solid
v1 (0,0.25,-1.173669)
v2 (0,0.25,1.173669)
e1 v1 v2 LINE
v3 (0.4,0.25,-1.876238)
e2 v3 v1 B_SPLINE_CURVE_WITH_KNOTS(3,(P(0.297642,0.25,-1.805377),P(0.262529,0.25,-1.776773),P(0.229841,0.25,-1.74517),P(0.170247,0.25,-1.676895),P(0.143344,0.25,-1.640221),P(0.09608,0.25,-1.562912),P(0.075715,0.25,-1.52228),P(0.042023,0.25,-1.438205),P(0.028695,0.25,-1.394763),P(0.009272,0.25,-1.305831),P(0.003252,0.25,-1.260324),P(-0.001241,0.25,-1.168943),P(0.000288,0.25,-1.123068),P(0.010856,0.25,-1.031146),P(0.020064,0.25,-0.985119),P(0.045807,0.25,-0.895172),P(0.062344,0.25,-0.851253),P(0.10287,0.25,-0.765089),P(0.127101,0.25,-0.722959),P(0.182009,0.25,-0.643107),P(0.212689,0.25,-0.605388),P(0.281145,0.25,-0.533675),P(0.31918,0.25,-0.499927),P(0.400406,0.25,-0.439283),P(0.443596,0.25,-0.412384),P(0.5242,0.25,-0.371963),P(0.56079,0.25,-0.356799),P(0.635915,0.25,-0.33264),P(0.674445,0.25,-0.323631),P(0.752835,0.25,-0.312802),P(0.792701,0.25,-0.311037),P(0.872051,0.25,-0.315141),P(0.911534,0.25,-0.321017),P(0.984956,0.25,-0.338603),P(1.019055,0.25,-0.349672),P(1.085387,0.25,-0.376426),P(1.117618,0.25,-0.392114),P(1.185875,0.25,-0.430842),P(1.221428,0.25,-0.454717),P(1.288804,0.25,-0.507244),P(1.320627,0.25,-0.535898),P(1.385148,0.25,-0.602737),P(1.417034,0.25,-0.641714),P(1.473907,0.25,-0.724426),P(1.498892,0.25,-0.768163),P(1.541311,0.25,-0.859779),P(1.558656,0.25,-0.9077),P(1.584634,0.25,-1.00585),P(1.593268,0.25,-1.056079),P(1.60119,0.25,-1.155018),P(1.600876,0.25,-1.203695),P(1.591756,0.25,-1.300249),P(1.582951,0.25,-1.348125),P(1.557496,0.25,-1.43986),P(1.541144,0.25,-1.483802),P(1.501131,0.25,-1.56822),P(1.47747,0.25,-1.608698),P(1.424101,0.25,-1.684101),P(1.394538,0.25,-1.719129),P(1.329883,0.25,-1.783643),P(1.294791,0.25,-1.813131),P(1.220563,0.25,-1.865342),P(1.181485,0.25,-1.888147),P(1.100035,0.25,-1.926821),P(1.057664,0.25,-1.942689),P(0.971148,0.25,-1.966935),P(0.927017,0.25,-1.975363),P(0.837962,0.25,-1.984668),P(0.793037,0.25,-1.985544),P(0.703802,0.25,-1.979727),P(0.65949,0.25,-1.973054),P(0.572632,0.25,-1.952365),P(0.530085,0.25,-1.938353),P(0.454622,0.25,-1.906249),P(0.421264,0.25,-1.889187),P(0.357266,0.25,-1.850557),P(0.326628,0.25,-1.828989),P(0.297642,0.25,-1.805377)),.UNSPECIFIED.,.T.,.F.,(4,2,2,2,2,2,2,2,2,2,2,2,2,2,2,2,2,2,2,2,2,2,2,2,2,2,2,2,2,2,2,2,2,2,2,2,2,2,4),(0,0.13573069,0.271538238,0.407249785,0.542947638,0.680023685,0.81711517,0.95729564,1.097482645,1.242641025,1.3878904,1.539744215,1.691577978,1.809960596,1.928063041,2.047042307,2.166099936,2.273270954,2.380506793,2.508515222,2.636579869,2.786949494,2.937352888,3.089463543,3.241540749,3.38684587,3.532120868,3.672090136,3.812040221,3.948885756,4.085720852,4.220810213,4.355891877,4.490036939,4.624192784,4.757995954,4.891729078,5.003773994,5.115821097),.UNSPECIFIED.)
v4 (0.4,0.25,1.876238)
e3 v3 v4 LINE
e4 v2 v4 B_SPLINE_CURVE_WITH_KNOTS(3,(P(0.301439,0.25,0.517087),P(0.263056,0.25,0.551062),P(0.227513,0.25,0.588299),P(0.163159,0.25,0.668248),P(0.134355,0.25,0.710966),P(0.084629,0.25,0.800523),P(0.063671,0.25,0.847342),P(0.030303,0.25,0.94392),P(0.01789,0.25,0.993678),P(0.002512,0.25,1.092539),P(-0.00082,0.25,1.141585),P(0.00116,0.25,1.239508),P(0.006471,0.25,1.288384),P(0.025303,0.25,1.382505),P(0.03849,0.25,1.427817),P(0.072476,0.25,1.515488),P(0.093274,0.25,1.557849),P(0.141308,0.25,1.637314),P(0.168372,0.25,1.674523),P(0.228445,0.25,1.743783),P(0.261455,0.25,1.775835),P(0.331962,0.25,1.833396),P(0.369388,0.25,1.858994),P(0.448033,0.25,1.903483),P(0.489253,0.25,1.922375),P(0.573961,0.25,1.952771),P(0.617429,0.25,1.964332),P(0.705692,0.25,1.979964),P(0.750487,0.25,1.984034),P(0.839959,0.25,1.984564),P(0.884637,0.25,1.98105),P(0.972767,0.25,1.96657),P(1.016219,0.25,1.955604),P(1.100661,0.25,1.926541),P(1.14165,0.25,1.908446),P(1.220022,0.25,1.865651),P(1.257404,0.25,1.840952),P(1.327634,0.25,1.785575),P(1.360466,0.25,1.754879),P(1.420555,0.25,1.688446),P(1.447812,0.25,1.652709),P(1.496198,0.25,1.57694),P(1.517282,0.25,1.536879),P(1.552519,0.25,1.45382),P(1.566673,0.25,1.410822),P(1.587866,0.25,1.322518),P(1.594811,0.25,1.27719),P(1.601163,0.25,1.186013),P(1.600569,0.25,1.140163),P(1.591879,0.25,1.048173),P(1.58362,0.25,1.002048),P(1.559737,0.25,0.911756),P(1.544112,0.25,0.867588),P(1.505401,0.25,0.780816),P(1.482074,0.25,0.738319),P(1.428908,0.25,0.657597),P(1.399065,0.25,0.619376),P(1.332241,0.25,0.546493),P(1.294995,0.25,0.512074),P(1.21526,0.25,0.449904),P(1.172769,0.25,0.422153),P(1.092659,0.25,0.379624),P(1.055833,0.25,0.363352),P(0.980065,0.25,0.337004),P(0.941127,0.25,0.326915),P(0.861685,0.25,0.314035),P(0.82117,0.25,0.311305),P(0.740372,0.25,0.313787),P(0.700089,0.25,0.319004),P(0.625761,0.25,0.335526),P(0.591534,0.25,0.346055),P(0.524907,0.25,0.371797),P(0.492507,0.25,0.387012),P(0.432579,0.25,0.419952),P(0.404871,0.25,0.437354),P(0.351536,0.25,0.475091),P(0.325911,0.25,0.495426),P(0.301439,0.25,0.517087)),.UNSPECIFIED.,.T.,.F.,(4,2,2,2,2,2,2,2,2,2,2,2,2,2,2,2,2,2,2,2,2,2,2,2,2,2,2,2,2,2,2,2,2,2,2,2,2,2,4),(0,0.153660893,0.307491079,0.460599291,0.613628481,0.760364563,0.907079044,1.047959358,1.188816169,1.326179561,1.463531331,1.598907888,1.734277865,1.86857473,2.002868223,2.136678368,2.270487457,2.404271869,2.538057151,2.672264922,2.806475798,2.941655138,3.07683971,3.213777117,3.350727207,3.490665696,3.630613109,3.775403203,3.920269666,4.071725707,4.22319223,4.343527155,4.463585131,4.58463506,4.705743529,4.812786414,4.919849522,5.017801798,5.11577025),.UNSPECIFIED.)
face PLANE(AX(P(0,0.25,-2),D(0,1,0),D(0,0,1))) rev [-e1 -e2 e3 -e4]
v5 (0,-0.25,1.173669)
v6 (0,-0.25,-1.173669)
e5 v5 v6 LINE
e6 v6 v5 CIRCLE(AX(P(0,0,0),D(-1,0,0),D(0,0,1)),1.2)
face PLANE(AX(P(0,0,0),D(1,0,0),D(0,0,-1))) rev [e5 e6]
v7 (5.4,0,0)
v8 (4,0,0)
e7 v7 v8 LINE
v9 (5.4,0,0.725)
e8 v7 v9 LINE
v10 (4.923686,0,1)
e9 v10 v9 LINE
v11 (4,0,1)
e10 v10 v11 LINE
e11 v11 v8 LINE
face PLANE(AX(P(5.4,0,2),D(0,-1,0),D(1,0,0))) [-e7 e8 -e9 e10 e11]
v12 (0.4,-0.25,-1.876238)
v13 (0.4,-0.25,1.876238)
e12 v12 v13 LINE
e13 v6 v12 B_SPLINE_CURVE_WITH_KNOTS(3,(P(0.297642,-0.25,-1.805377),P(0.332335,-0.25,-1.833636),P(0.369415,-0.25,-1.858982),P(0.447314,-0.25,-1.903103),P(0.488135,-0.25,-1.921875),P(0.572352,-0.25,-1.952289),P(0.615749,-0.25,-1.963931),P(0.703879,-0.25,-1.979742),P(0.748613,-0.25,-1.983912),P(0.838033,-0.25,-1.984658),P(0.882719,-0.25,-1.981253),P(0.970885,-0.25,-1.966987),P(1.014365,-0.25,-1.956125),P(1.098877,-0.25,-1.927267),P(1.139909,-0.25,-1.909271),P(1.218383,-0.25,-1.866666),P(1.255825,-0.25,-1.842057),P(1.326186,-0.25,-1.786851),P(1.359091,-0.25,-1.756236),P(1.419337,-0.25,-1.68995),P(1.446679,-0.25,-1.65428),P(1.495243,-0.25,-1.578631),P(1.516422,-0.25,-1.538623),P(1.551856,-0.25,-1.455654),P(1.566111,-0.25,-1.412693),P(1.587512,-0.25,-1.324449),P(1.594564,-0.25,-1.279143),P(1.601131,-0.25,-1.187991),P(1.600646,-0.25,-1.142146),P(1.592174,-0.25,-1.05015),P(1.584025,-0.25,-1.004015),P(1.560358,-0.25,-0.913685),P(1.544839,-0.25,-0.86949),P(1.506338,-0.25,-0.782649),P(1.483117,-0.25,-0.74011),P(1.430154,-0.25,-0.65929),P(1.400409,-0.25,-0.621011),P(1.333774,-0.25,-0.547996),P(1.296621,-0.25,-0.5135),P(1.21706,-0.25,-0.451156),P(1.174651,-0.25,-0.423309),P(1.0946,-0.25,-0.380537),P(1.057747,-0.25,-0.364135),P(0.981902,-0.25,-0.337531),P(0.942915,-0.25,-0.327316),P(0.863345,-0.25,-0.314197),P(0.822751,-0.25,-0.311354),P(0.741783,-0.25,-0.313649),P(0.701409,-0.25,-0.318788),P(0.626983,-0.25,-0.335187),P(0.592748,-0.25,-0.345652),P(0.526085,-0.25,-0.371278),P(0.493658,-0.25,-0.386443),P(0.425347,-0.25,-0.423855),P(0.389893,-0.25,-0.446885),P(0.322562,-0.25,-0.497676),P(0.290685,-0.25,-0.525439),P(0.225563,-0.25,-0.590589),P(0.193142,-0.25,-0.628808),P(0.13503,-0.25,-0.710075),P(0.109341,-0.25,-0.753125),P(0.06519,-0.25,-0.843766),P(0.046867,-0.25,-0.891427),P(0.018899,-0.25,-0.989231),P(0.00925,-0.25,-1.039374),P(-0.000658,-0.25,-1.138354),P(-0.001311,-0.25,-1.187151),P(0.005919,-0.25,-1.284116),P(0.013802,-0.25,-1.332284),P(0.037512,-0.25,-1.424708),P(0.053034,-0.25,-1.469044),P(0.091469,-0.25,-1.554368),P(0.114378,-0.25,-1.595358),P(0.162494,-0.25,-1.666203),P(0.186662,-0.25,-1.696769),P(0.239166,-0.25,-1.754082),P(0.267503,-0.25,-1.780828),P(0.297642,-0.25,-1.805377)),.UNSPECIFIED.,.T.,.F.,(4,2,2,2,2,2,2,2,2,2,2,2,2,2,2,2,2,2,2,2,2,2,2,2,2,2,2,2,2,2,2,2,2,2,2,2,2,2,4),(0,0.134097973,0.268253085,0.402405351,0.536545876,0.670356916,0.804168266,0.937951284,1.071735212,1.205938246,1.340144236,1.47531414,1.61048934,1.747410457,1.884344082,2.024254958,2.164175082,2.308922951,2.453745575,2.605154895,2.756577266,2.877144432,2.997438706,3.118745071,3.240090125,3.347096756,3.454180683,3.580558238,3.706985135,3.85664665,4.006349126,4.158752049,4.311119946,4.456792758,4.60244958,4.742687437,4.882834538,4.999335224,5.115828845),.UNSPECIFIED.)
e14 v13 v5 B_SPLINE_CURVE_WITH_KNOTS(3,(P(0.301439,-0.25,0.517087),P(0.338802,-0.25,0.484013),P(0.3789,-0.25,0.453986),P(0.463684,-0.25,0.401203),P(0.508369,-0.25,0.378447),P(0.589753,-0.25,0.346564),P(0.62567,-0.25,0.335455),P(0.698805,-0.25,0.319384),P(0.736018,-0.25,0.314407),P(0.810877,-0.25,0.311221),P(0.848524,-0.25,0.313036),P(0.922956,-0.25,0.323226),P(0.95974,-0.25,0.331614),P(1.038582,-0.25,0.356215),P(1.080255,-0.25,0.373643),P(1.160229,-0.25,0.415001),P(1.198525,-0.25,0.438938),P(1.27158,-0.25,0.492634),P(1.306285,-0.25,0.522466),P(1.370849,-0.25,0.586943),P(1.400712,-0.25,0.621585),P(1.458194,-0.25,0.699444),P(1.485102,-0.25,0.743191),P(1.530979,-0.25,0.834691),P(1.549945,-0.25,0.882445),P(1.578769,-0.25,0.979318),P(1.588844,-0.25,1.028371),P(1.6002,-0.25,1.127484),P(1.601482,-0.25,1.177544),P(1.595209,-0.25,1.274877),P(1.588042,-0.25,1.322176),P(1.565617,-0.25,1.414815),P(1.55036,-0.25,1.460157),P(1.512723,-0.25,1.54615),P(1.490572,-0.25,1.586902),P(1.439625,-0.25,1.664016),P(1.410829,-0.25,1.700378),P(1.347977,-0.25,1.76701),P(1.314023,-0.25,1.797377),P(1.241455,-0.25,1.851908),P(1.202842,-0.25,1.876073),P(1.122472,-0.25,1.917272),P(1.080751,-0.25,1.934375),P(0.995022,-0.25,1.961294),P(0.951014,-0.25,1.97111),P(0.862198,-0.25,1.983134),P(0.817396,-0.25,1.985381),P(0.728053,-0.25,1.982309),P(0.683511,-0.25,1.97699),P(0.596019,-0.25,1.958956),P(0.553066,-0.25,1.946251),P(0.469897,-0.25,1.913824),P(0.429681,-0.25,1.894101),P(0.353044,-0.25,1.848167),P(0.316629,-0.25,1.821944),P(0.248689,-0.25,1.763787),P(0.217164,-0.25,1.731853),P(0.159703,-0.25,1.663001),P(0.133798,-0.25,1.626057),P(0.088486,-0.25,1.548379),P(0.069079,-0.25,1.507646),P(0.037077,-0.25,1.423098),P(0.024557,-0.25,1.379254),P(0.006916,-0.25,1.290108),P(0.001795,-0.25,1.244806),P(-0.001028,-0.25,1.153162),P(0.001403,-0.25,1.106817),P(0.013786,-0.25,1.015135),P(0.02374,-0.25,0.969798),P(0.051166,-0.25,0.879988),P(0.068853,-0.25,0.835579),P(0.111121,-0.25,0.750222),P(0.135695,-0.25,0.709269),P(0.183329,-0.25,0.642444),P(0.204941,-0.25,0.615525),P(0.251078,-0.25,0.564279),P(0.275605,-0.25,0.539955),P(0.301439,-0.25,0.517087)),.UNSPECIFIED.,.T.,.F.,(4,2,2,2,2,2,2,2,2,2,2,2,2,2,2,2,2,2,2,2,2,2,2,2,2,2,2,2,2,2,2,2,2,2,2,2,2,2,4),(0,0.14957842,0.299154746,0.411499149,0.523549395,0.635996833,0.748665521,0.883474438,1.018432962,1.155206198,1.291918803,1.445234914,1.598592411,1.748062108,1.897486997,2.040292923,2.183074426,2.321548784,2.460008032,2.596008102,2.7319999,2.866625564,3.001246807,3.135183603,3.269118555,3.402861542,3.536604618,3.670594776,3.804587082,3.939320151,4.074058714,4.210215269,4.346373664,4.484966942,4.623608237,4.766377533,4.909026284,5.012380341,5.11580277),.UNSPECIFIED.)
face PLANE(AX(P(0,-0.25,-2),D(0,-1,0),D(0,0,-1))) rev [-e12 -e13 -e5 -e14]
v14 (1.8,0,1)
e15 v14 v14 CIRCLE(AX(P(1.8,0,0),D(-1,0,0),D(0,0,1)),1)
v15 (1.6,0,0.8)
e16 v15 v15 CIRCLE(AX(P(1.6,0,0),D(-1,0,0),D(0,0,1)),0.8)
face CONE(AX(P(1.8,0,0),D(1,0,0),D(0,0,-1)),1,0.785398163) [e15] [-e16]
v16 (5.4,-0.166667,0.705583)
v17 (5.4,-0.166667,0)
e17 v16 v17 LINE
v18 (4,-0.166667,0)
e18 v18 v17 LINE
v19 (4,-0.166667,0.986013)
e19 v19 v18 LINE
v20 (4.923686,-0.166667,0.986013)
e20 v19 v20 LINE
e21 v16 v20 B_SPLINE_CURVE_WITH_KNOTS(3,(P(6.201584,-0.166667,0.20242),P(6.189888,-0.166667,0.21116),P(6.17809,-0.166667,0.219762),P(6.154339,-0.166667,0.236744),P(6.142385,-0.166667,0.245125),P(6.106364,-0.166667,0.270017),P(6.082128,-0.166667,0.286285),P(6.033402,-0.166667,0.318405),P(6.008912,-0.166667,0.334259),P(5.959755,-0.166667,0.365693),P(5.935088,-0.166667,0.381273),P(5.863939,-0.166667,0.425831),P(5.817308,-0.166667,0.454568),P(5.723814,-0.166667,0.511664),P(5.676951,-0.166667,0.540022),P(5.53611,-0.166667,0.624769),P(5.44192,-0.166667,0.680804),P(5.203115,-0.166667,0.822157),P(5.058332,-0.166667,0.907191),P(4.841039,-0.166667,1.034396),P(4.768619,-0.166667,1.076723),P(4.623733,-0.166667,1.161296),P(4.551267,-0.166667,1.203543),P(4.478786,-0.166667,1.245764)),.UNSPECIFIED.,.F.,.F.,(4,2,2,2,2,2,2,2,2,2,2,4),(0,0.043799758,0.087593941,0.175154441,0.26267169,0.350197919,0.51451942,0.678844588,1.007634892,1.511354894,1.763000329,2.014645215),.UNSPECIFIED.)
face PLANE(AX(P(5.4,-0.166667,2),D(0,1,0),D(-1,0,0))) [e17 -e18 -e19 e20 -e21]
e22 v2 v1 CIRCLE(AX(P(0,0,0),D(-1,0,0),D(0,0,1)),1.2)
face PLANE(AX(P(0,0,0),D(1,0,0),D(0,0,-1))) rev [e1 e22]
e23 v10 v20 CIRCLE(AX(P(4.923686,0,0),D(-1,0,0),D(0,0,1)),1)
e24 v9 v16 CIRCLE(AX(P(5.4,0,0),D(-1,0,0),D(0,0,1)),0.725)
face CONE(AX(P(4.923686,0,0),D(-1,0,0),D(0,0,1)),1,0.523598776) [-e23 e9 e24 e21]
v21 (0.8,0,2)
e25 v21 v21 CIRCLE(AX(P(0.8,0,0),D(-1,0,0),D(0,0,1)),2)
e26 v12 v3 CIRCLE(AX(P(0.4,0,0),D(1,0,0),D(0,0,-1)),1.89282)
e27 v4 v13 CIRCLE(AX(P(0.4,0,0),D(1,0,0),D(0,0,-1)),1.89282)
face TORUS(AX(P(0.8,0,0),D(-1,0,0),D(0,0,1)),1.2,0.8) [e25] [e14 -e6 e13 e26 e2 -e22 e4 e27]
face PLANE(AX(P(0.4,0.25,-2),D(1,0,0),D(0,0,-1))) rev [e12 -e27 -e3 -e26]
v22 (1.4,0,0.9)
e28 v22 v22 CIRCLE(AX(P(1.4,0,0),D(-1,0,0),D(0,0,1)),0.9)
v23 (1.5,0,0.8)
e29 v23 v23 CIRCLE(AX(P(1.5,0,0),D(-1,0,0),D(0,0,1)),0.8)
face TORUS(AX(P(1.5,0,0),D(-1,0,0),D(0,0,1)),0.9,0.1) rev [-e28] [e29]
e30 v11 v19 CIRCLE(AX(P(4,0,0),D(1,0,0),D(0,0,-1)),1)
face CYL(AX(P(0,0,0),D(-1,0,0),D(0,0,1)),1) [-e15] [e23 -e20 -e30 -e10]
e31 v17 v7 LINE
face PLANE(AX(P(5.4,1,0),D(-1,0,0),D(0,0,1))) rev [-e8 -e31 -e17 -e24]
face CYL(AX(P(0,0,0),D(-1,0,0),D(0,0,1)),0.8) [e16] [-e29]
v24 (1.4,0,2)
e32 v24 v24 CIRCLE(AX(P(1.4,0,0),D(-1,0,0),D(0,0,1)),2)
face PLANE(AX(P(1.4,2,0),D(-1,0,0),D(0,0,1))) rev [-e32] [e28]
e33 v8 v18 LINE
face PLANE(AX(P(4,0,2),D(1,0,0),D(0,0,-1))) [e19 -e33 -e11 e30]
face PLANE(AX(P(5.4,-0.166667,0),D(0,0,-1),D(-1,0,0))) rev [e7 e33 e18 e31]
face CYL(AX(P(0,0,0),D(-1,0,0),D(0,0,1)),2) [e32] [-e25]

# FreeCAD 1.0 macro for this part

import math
import FreeCAD as App
import Part
import Sketcher
from FreeCAD import Vector
Q = App.Units.Quantity


def add_polygon(sketch, points):
    """Adds a closed chain of lines whose ends are joined by coincident constraints."""
    first, n = sketch.GeometryCount, len(points)
    for a, b in zip(points, points[1:] + points[:1]):
        sketch.addGeometry(Part.LineSegment(App.Vector(*a, 0), App.Vector(*b, 0)), False)
    for i in range(n):
        sketch.addConstraint(Sketcher.Constraint("Coincident", first + i, 2, first + (i + 1) % n, 1))

doc = App.newDocument("Part")
body = doc.addObject("PartDesign::Body", "Body")

# Sketch on XY plane
sketch1 = body.newObject("Sketcher::SketchObject", "Sketch")
sketch1.AttachmentSupport = (doc.getObject("XY_Plane"), [""])
sketch1.MapMode = "FlatFace"
sketch1.addGeometry(Part.LineSegment(Vector(0, 1.2, 0), Vector(0, 0, 0)), False)
sketch1.addGeometry(Part.LineSegment(Vector(0, 0, 0), Vector(5.4, 0, 0)), False)
sketch1.addGeometry(Part.LineSegment(Vector(5.4, 0, 0), Vector(5.4, 1, 0)), False)
sketch1.addGeometry(Part.LineSegment(Vector(5.4, 1, 0), Vector(1.8, 1, 0)), False)
sketch1.addGeometry(Part.LineSegment(Vector(1.8, 1, 0), Vector(1.6, 0.8, 0)), False)
sketch1.addGeometry(Part.LineSegment(Vector(1.6, 0.8, 0), Vector(1.5, 0.8, 0)), False)
sketch1.addGeometry(Part.ArcOfCircle(Part.Circle(Vector(1.5, 0.9, 0), Vector(0, 0, 1), 0.1), math.radians(180), math.radians(270)), False)
sketch1.addGeometry(Part.LineSegment(Vector(1.4, 0.9, 0), Vector(1.4, 2, 0)), False)
sketch1.addGeometry(Part.LineSegment(Vector(1.4, 2, 0), Vector(0.8, 2, 0)), False)
sketch1.addGeometry(Part.ArcOfCircle(Part.Circle(Vector(0.8, 1.2, 0), Vector(0, 0, 1), 0.8), math.radians(90), math.radians(180)), False)
sketch1.addConstraint(Sketcher.Constraint("Coincident", 0, 2, 1, 1))
sketch1.addConstraint(Sketcher.Constraint("Coincident", 1, 2, 2, 1))
sketch1.addConstraint(Sketcher.Constraint("Coincident", 2, 2, 3, 1))
sketch1.addConstraint(Sketcher.Constraint("Coincident", 3, 2, 4, 1))
sketch1.addConstraint(Sketcher.Constraint("Coincident", 4, 2, 5, 1))
sketch1.addConstraint(Sketcher.Constraint("Tangent", 5, 2, 6, 2))
sketch1.addConstraint(Sketcher.Constraint("Tangent", 6, 1, 7, 1))
sketch1.addConstraint(Sketcher.Constraint("Coincident", 7, 2, 8, 1))
sketch1.addConstraint(Sketcher.Constraint("Tangent", 8, 2, 9, 1))
sketch1.addConstraint(Sketcher.Constraint("Tangent", 9, 2, 0, 1))
sketch1.addConstraint(Sketcher.Constraint("Vertical", 0))
sketch1.addConstraint(Sketcher.Constraint("Horizontal", 1))
sketch1.addConstraint(Sketcher.Constraint("Vertical", 2))
sketch1.addConstraint(Sketcher.Constraint("Horizontal", 3))
sketch1.addConstraint(Sketcher.Constraint("Horizontal", 5))
sketch1.addConstraint(Sketcher.Constraint("Vertical", 7))
sketch1.addConstraint(Sketcher.Constraint("Horizontal", 8))
sketch1.addConstraint(Sketcher.Constraint("Coincident", 0, 2, -1, 1))
sketch1.addConstraint(Sketcher.Constraint("Radius", 6, 0.1))
sketch1.addConstraint(Sketcher.Constraint("Radius", 9, 0.8))
sketch1.addConstraint(Sketcher.Constraint("DistanceY", 2, 1, 2, 2, 1.0))
sketch1.addConstraint(Sketcher.Constraint("Angle", 4, Q("-135 deg")))
sketch1.addConstraint(Sketcher.Constraint("DistanceX", 1, 1, 1, 2, 5.4))
sketch1.addConstraint(Sketcher.Constraint("DistanceX", 3, 2, 3, 1, 3.6))
sketch1.addConstraint(Sketcher.Constraint("DistanceX", 5, 2, 5, 1, 0.1))
sketch1.addConstraint(Sketcher.Constraint("DistanceX", 8, 2, 8, 1, 0.6))
sketch1.addConstraint(Sketcher.Constraint("DistanceY", 0, 2, 0, 1, 1.2))
revolution = body.newObject("PartDesign::Revolution", "Revolution")
revolution.Profile = sketch1
revolution.ReferenceAxis = (sketch1, ["H_Axis"])
revolution.Angle = 360

# Sketch on XY plane
sketch2 = body.newObject("Sketcher::SketchObject", "Sketch001")
sketch2.AttachmentSupport = (doc.getObject("XY_Plane"), [""])
sketch2.MapMode = "FlatFace"
add_polygon(sketch2, [(0, 0.25), (0, -0.25), (0.4, -0.25), (0.4, 0.25)])  # lines 0-3
sketch2.addConstraint(Sketcher.Constraint("Vertical", 0))
sketch2.addConstraint(Sketcher.Constraint("Horizontal", 1))
sketch2.addConstraint(Sketcher.Constraint("Vertical", 2))
sketch2.addConstraint(Sketcher.Constraint("Horizontal", 3))
sketch2.addConstraint(Sketcher.Constraint("Symmetric", 0, 2, 3, 2, -1, 1))
sketch2.addConstraint(Sketcher.Constraint("DistanceX", 1, 1, 1, 2, 0.4))
sketch2.addConstraint(Sketcher.Constraint("DistanceY", 0, 2, 0, 1, 0.5))
pocket1 = body.newObject("PartDesign::Pocket", "Pocket")
pocket1.Profile = sketch2
pocket1.Type = "ThroughAll"
pocket1.Midplane = True

# Sketch on XY plane
sketch3 = body.newObject("Sketcher::SketchObject", "Sketch002")
sketch3.AttachmentSupport = (doc.getObject("XY_Plane"), [""])
sketch3.MapMode = "FlatFace"
add_polygon(sketch3, [(5.4, 0), (5.908, 0), (5.908, 1.508), (4.923686, 1.508), (4.923686, 1), (5.4, 0.725)])  # lines 0-5
sketch3.addConstraint(Sketcher.Constraint("Horizontal", 0))
sketch3.addConstraint(Sketcher.Constraint("Vertical", 1))
sketch3.addConstraint(Sketcher.Constraint("Horizontal", 2))
sketch3.addConstraint(Sketcher.Constraint("Vertical", 3))
sketch3.addConstraint(Sketcher.Constraint("Vertical", 5))
sketch3.addConstraint(Sketcher.Constraint("PointOnObject", 0, 2, -1))
sketch3.addConstraint(Sketcher.Constraint("Equal", 0, 3))
sketch3.addConstraint(Sketcher.Constraint("Angle", 4, Q("-30 deg")))
sketch3.addConstraint(Sketcher.Constraint("DistanceY", -1, 1, 3, 2, 1.0))
sketch3.addConstraint(Sketcher.Constraint("DistanceX", -1, 1, 4, 2, 5.4))
sketch3.addConstraint(Sketcher.Constraint("Distance", 4, 0.55))
sketch3.addConstraint(Sketcher.Constraint("DistanceX", 0, 1, 0, 2, 0.508))
groove = body.newObject("PartDesign::Groove", "Groove")
groove.Profile = sketch3
groove.ReferenceAxis = (sketch3, ["H_Axis"])
groove.Angle = 360

# Sketch on XY plane
sketch4 = body.newObject("Sketcher::SketchObject", "Sketch003")
sketch4.AttachmentSupport = (doc.getObject("XY_Plane"), [""])
sketch4.MapMode = "FlatFace"
add_polygon(sketch4, [(4, 0), (4, -0.166667), (5.4, -0.166667), (5.4, 0)])  # lines 0-3
sketch4.addConstraint(Sketcher.Constraint("Vertical", 0))
sketch4.addConstraint(Sketcher.Constraint("Horizontal", 1))
sketch4.addConstraint(Sketcher.Constraint("Vertical", 2))
sketch4.addConstraint(Sketcher.Constraint("Horizontal", 3))
sketch4.addConstraint(Sketcher.Constraint("PointOnObject", 2, 2, -1))
sketch4.addConstraint(Sketcher.Constraint("DistanceX", 1, 1, 1, 2, 1.4))
sketch4.addConstraint(Sketcher.Constraint("DistanceX", -1, 1, 0, 2, 4.0))
sketch4.addConstraint(Sketcher.Constraint("DistanceY", 0, 2, 0, 1, 0.166667))
pocket2 = body.newObject("PartDesign::Pocket", "Pocket001")
pocket2.Profile = sketch4
pocket2.Type = "ThroughAll"
pocket2.Reversed = True

doc.recompute()
